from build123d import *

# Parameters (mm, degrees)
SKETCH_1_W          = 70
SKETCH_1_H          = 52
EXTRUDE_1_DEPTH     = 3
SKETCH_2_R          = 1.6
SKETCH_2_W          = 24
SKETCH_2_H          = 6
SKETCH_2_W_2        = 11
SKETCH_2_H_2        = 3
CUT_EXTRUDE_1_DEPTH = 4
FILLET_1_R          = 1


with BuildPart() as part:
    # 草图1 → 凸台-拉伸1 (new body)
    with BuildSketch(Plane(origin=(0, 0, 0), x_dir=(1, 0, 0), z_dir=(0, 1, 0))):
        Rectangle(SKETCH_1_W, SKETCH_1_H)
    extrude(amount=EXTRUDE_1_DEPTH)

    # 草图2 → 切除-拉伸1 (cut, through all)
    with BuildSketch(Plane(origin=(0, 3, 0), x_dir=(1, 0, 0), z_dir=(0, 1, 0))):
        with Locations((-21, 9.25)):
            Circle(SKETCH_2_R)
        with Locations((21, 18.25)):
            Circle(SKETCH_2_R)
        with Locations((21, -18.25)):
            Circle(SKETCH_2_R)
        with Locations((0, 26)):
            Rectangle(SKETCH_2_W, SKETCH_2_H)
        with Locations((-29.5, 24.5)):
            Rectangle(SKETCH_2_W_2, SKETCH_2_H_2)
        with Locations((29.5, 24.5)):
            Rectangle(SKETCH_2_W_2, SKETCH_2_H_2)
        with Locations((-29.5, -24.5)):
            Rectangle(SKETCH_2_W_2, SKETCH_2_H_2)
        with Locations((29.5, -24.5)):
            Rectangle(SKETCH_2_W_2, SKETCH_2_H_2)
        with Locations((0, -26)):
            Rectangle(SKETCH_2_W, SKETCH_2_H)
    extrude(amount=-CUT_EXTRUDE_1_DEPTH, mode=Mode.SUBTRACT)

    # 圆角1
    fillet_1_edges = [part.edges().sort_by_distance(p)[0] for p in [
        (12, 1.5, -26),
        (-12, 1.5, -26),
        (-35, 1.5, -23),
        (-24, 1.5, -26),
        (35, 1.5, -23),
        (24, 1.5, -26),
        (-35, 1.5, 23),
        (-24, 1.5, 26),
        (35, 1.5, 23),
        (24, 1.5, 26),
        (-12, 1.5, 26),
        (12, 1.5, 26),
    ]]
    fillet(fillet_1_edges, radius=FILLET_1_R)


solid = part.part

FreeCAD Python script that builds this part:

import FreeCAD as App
import Part
import Sketcher
from FreeCAD import Vector
Q = App.Units.Quantity


def edges_at(feature, points):
    """Names of the edges that pass closest to the given points."""
    edges = feature.Shape.Edges
    near = lambda p: min(range(len(edges)), key=lambda i: edges[i].distToShape(Part.Vertex(*p))[0])
    return sorted({f"Edge{near(p) + 1}" for p in points})


def add_polygon(sketch, points):
    """Adds a closed chain of lines whose ends are joined by coincident constraints."""
    first, n = sketch.GeometryCount, len(points)
    for a, b in zip(points, points[1:] + points[:1]):
        sketch.addGeometry(Part.LineSegment(App.Vector(*a, 0), App.Vector(*b, 0)), False)
    for i in range(n):
        sketch.addConstraint(Sketcher.Constraint("Coincident", first + i, 2, first + (i + 1) % n, 1))

doc = App.newDocument("Part")
params = doc.addObject("Spreadsheet::Sheet", "Params")
for row, (alias, value) in enumerate([
    ("sketch1_width", "70 mm"),
    ("sketch1_height", "52 mm"),
    ("pad1_length", "3 mm"),
    ("sketch2_diameter", "3.2 mm"),
    ("sketch2_width", "24 mm"),
    ("sketch2_width2", "11 mm"),
    ("sketch2_height", "6 mm"),
    ("sketch2_height2", "3 mm"),
    ("fillet_radius", "1 mm"),
], start=1):
    params.set(f"A{row}", alias)
    params.set(f"B{row}", "=" + value)
    params.setAlias(f"B{row}", alias)

body = doc.addObject("PartDesign::Body", "Body")

sketch1 = doc.addObject("Sketcher::SketchObject", "Sketch")
body.addObject(sketch1)
sketch1.AttachmentSupport = (doc.XZ_Plane, [""])
sketch1.MapMode = "FlatFace"
add_polygon(sketch1, [(-35, -26), (-35, 26), (35, 26), (35, -26)])
sketch1.addConstraint(Sketcher.Constraint("Vertical", 0))
sketch1.addConstraint(Sketcher.Constraint("Horizontal", 1))
sketch1.addConstraint(Sketcher.Constraint("Vertical", 2))
sketch1.addConstraint(Sketcher.Constraint("Horizontal", 3))
sketch1.addConstraint(Sketcher.Constraint("Symmetric", 0, 2, 2, 2, -1, 1))
sketch1.addConstraint(Sketcher.Constraint("DistanceX", 1, 1, 1, 2, Q("70 mm")))
sketch1.addConstraint(Sketcher.Constraint("DistanceY", 0, 1, 0, 2, Q("52 mm")))
sketch1.setExpression("Constraints[9]", "Params.sketch1_width")
sketch1.setExpression("Constraints[10]", "Params.sketch1_height")
pad1 = doc.addObject("PartDesign::Pad", "Pad")
body.addObject(pad1)
pad1.Profile = sketch1
pad1.setExpression("Length", "Params.pad1_length")
pad1.Reversed = True

sketch2 = doc.addObject("Sketcher::SketchObject", "Sketch001")
body.addObject(sketch2)
sketch2.AttachmentSupport = (doc.XZ_Plane, [""])
sketch2.MapMode = "FlatFace"
sketch2.AttachmentOffset = App.Placement(Vector(0, 0, -3), App.Rotation())
sketch2.addGeometry(Part.Circle(Vector(-21, -9.25, 0), Vector(0, 0, 1), 1.6), False)
sketch2.addGeometry(Part.Circle(Vector(21, -18.25, 0), Vector(0, 0, 1), 1.6), False)
sketch2.addGeometry(Part.Circle(Vector(21, 18.25, 0), Vector(0, 0, 1), 1.6), False)
add_polygon(sketch2, [(-12, -29), (-12, -23), (12, -23), (12, -29)])
add_polygon(sketch2, [(-35, -26), (-35, -23), (-24, -23), (-24, -26)])
add_polygon(sketch2, [(24, -26), (24, -23), (35, -23), (35, -26)])
add_polygon(sketch2, [(-35, 23), (-35, 26), (-24, 26), (-24, 23)])
add_polygon(sketch2, [(24, 23), (24, 26), (35, 26), (35, 23)])
add_polygon(sketch2, [(-12, 23), (-12, 29), (12, 29), (12, 23)])
sketch2.addConstraint(Sketcher.Constraint("Vertical", 3))
sketch2.addConstraint(Sketcher.Constraint("Horizontal", 4))
sketch2.addConstraint(Sketcher.Constraint("Vertical", 5))
sketch2.addConstraint(Sketcher.Constraint("Horizontal", 6))
sketch2.addConstraint(Sketcher.Constraint("Vertical", 7))
sketch2.addConstraint(Sketcher.Constraint("Horizontal", 8))
sketch2.addConstraint(Sketcher.Constraint("Vertical", 9))
sketch2.addConstraint(Sketcher.Constraint("Horizontal", 10))
sketch2.addConstraint(Sketcher.Constraint("Vertical", 11))
sketch2.addConstraint(Sketcher.Constraint("Horizontal", 12))
sketch2.addConstraint(Sketcher.Constraint("Vertical", 13))
sketch2.addConstraint(Sketcher.Constraint("Horizontal", 14))
sketch2.addConstraint(Sketcher.Constraint("Vertical", 15))
sketch2.addConstraint(Sketcher.Constraint("Horizontal", 16))
sketch2.addConstraint(Sketcher.Constraint("Vertical", 17))
sketch2.addConstraint(Sketcher.Constraint("Horizontal", 18))
sketch2.addConstraint(Sketcher.Constraint("Vertical", 19))
sketch2.addConstraint(Sketcher.Constraint("Horizontal", 20))
sketch2.addConstraint(Sketcher.Constraint("Vertical", 21))
sketch2.addConstraint(Sketcher.Constraint("Horizontal", 22))
sketch2.addConstraint(Sketcher.Constraint("Vertical", 23))
sketch2.addConstraint(Sketcher.Constraint("Horizontal", 24))
sketch2.addConstraint(Sketcher.Constraint("Vertical", 25))
sketch2.addConstraint(Sketcher.Constraint("Horizontal", 26))
sketch2.addConstraint(Sketcher.Constraint("Equal", 0, 1))
sketch2.addConstraint(Sketcher.Constraint("Equal", 1, 2))
sketch2.addConstraint(Sketcher.Constraint("Symmetric", 13, 2, 15, 2, -1, 1))
sketch2.addConstraint(Sketcher.Constraint("Symmetric", 11, 2, 17, 2, -1, 1))
sketch2.addConstraint(Sketcher.Constraint("Symmetric", 9, 2, 19, 2, -1, 1))
sketch2.addConstraint(Sketcher.Constraint("Symmetric", 7, 2, 21, 2, -1, 1))
sketch2.addConstraint(Sketcher.Constraint("Symmetric", 5, 2, 23, 2, -1, 1))
sketch2.addConstraint(Sketcher.Constraint("Symmetric", 3, 2, 25, 2, -1, 1))
sketch2.addConstraint(Sketcher.Constraint("Symmetric", 8, 2, 11, 2, -2))
sketch2.addConstraint(Sketcher.Constraint("Symmetric", 10, 2, 13, 2, -2))
sketch2.addConstraint(Sketcher.Constraint("Symmetric", 1, 3, 2, 3, -1))
sketch2.addConstraint(Sketcher.Constraint("Horizontal", 4, 2, 7, 2))
sketch2.addConstraint(Sketcher.Constraint("Vertical", 6, 2, 23, 2))
sketch2.addConstraint(Sketcher.Constraint("Diameter", 0, Q("3.2 mm")))
sketch2.addConstraint(Sketcher.Constraint("DistanceX", 4, 1, 4, 2, Q("24 mm")))
sketch2.addConstraint(Sketcher.Constraint("DistanceX", 8, 1, 8, 2, Q("11 mm")))
sketch2.addConstraint(Sketcher.Constraint("DistanceY", 3, 1, 3, 2, Q("6 mm")))
sketch2.addConstraint(Sketcher.Constraint("DistanceY", 7, 1, 7, 2, Q("3 mm")))
sketch2.addConstraint(Sketcher.Constraint("DistanceX", 0, 3, -1, 1, Q("21 mm")))
sketch2.addConstraint(Sketcher.Constraint("DistanceX", -1, 1, 1, 3, Q("21 mm")))
sketch2.addConstraint(Sketcher.Constraint("DistanceY", 3, 2, -1, 1, Q("23 mm")))
sketch2.addConstraint(Sketcher.Constraint("DistanceX", 7, 2, -1, 1, Q("35 mm")))
sketch2.addConstraint(Sketcher.Constraint("DistanceY", 1, 3, 0, 3, Q("9 mm")))
sketch2.addConstraint(Sketcher.Constraint("DistanceY", 1, 3, 2, 3, Q("36.5 mm")))
sketch2.setExpression("Constraints[61]", "Params.sketch2_diameter")
sketch2.setExpression("Constraints[62]", "Params.sketch2_width")
sketch2.setExpression("Constraints[63]", "Params.sketch2_width2")
sketch2.setExpression("Constraints[64]", "Params.sketch2_height")
sketch2.setExpression("Constraints[65]", "Params.sketch2_height2")
pocket1 = doc.addObject("PartDesign::Pocket", "Pocket")
body.addObject(pocket1)
pocket1.Profile = sketch2
pocket1.Type = "ThroughAll"
pocket1.Reversed = True
doc.recompute()

fillet = doc.addObject("PartDesign::Fillet", "Fillet")
body.addObject(fillet)
fillet.Base = (pocket1, edges_at(pocket1, [
    (12, 1.5, -26),
    (-12, 1.5, -26),
    (-35, 1.5, -23),
    (-24, 1.5, -26),
    (35, 1.5, -23),
    (24, 1.5, -26),
    (-35, 1.5, 23),
    (-24, 1.5, 26),
    (35, 1.5, 23),
    (24, 1.5, 26),
    (-12, 1.5, 26),
    (12, 1.5, 26),
]))
fillet.setExpression("Radius", "Params.fillet_radius")

doc.recompute()
